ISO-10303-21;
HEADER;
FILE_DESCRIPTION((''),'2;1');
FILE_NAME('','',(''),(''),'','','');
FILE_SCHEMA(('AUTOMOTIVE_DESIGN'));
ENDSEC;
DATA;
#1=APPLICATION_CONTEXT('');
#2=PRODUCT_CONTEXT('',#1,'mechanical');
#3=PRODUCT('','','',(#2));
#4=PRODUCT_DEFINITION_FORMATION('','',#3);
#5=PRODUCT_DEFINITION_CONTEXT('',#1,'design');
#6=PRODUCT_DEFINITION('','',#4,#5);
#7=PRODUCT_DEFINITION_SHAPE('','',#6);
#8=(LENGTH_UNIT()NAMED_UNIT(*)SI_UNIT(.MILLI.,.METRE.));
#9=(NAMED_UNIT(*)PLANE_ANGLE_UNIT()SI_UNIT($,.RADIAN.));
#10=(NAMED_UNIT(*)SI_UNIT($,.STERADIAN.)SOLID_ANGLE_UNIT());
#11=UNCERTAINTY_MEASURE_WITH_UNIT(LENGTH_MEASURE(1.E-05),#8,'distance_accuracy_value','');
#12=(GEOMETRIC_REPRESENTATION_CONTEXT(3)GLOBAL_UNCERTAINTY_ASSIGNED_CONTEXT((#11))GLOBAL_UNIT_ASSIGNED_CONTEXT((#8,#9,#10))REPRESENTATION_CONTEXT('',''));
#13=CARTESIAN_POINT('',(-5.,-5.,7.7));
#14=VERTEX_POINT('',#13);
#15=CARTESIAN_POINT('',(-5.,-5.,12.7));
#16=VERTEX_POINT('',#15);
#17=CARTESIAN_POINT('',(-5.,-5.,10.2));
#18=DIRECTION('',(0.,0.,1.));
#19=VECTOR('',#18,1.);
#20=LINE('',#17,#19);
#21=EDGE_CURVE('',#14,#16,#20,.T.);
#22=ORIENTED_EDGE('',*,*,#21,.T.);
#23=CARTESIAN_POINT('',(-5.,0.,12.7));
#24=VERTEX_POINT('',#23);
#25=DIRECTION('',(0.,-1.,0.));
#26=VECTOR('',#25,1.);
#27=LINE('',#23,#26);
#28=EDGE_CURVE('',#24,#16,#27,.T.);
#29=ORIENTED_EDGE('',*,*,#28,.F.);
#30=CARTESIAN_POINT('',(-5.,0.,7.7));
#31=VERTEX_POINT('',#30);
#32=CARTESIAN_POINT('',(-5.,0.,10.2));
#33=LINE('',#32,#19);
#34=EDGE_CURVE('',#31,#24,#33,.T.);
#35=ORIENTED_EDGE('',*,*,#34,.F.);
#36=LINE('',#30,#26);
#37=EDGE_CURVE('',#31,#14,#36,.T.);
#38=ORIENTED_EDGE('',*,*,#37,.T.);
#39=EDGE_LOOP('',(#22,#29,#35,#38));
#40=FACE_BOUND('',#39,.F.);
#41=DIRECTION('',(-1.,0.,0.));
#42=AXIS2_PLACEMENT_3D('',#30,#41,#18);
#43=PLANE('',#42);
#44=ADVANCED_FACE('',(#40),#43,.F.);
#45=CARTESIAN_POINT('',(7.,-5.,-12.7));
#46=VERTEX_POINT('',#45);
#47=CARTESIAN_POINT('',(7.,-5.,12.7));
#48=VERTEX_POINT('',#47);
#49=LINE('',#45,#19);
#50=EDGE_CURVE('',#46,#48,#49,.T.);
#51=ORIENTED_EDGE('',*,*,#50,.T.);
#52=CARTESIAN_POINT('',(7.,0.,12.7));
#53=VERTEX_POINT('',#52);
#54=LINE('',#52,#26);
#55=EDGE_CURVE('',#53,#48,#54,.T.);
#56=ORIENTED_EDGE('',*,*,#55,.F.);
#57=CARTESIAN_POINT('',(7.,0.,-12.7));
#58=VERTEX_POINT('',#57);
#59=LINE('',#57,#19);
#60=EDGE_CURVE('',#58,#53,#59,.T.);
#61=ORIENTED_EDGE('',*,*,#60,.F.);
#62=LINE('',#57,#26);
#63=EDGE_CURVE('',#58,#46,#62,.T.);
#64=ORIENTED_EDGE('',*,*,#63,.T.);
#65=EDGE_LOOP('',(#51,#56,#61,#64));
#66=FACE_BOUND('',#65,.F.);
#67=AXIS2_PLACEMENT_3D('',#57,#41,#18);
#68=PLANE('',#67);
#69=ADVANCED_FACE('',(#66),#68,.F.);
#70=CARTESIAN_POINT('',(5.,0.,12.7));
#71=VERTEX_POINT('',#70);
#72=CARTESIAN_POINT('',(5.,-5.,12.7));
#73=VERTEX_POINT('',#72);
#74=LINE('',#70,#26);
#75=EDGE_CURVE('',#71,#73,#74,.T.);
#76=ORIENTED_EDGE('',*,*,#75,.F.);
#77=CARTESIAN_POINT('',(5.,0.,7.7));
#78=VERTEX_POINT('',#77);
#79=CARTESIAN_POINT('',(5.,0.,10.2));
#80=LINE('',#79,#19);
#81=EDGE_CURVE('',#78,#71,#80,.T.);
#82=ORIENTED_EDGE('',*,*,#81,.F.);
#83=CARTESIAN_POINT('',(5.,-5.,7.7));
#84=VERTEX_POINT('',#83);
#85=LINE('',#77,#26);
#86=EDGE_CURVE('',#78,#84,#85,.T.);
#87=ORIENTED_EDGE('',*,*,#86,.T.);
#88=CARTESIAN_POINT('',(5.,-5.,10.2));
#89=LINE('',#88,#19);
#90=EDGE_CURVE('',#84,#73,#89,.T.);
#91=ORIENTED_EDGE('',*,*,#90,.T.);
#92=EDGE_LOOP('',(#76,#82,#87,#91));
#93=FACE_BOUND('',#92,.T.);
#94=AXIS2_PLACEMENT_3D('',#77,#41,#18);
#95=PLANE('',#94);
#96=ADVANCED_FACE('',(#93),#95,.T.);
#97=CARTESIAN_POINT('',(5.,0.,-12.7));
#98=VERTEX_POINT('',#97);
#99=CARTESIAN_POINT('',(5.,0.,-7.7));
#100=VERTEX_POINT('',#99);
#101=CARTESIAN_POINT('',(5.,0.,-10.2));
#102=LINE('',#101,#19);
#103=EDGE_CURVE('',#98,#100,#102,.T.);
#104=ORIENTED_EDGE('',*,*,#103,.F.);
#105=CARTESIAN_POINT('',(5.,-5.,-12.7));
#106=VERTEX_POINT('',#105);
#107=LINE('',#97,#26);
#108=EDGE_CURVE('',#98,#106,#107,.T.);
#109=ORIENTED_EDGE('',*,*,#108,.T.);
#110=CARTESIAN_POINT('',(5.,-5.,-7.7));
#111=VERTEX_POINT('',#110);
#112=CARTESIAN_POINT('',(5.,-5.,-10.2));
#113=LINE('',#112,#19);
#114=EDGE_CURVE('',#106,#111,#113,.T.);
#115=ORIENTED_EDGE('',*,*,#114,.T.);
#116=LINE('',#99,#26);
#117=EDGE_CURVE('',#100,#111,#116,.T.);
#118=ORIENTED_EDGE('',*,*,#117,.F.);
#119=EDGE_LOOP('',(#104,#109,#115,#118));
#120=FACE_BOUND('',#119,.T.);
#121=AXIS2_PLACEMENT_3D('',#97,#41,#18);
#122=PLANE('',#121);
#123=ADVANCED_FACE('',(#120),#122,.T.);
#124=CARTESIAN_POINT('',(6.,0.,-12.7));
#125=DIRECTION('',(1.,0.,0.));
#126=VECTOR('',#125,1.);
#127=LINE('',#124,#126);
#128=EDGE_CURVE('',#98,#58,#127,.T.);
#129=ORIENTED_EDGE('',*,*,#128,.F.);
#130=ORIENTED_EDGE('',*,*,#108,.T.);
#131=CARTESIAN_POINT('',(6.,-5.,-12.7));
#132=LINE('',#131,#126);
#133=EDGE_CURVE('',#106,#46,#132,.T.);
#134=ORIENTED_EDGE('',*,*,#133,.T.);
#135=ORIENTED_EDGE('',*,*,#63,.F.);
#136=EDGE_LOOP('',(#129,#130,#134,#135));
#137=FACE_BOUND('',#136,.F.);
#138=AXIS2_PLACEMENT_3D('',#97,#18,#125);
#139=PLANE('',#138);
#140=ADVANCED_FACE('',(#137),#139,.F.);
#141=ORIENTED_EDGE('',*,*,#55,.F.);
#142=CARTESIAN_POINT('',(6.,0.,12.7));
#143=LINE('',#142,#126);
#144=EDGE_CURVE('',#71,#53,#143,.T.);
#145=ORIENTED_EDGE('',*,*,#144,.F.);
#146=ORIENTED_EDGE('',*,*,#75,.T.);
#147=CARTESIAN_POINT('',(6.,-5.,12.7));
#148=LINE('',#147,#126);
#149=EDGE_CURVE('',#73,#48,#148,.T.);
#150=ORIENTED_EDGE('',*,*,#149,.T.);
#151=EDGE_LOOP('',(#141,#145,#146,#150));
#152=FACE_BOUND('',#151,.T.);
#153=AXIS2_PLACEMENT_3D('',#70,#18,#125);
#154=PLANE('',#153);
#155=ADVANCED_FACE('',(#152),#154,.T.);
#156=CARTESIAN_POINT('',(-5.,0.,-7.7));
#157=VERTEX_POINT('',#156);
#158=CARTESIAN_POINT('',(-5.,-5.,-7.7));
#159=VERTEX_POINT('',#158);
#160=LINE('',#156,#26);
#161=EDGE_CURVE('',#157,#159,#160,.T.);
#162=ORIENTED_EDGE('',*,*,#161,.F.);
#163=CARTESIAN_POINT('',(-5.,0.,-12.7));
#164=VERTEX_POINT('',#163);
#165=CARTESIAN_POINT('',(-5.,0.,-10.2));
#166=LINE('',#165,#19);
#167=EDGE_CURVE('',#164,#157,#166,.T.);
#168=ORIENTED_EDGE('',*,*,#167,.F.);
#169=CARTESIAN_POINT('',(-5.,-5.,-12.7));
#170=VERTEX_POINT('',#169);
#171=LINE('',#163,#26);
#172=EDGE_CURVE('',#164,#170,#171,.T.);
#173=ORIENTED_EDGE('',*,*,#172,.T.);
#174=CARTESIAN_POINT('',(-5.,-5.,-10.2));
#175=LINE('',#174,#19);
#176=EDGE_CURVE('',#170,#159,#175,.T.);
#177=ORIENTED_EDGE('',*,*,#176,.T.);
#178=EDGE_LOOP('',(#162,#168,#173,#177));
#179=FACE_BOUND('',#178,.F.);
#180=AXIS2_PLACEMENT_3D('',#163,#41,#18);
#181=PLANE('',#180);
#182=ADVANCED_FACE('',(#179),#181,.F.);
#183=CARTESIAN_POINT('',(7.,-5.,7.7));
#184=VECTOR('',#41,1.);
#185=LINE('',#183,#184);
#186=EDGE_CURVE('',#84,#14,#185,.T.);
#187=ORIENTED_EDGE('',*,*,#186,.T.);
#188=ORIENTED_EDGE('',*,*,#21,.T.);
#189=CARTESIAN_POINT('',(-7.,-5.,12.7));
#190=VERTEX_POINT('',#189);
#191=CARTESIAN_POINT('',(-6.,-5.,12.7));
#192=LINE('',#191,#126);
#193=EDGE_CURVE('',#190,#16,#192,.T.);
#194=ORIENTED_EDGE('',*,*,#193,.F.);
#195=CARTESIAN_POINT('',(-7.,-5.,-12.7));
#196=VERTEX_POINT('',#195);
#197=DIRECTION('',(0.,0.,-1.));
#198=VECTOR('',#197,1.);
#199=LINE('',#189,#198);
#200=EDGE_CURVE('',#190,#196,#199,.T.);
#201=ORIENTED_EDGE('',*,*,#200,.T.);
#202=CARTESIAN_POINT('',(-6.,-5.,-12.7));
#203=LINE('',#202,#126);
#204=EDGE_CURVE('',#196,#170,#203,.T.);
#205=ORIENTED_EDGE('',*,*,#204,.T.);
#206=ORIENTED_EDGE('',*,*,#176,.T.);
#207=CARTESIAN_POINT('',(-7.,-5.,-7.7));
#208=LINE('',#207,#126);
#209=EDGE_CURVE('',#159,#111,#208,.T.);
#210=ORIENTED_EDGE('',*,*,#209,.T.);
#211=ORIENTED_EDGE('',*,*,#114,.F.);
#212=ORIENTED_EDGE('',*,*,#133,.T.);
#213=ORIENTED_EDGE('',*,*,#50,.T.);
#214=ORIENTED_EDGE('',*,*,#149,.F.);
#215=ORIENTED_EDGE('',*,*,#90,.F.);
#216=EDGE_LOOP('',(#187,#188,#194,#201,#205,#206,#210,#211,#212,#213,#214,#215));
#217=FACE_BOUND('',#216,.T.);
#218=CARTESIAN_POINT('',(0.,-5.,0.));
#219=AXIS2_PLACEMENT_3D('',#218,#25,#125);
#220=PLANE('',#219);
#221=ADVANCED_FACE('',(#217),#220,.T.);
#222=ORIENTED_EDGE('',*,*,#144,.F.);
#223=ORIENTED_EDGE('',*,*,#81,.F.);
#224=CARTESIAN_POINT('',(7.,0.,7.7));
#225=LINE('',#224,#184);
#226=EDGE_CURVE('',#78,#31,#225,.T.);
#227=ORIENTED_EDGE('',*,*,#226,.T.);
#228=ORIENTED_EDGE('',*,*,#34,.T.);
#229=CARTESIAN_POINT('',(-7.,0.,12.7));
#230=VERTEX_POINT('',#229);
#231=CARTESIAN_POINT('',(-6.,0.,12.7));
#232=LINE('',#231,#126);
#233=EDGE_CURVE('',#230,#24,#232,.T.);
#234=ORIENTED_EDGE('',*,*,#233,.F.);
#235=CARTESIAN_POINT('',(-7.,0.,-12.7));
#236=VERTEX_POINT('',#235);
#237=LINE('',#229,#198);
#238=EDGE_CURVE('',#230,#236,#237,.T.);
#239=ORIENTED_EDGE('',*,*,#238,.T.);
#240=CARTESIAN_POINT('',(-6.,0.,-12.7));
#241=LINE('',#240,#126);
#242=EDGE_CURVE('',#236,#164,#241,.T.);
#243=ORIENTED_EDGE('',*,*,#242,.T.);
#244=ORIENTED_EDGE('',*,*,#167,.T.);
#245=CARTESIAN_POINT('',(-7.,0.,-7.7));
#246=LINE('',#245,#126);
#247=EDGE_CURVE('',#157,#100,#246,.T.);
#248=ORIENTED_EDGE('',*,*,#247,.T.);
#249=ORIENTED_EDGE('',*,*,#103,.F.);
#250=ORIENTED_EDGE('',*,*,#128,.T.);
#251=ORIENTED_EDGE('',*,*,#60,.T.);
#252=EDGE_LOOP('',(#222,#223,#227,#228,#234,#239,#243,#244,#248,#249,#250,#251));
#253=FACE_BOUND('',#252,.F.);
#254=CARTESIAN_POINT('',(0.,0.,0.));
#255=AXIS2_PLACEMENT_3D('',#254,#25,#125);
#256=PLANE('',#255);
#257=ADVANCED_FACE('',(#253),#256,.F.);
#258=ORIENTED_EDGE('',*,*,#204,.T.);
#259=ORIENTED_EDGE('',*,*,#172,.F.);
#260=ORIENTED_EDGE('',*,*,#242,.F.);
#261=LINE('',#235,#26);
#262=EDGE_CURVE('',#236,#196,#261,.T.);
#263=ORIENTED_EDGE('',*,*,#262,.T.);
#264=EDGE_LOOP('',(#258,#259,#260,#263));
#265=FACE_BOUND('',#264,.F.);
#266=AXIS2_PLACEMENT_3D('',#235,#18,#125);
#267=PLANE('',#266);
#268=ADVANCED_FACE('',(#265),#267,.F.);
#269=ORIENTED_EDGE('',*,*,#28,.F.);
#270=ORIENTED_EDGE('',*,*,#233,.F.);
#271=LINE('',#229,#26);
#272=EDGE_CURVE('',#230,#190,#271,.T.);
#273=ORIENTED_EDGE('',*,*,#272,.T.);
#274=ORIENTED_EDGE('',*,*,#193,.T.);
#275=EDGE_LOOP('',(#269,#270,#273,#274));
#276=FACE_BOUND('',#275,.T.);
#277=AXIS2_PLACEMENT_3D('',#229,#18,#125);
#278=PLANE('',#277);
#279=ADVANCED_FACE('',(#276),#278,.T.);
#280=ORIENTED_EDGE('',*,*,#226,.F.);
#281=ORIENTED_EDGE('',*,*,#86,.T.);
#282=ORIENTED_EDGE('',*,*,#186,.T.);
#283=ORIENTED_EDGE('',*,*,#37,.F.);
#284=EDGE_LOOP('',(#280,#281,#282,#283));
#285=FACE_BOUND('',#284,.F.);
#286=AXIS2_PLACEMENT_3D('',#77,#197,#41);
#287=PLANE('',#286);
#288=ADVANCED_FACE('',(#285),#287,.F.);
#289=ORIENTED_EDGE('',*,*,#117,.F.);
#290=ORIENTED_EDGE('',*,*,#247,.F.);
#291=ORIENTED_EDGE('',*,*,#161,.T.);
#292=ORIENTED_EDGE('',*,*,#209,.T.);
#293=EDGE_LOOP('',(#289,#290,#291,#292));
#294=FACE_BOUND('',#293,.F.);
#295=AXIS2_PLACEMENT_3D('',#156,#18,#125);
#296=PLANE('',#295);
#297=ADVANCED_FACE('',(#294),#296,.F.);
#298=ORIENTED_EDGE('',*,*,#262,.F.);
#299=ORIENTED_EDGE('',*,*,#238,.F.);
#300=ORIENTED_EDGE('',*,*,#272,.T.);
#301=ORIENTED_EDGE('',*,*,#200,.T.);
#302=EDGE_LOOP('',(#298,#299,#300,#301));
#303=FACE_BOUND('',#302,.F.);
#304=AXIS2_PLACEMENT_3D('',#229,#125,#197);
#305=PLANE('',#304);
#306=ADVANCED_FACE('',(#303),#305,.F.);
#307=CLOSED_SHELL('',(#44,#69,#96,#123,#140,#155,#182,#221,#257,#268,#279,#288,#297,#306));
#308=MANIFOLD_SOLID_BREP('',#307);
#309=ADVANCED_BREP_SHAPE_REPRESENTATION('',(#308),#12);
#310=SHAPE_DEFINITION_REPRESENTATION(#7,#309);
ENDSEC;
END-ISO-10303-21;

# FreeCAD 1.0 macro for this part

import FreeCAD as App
import Part
import Sketcher


def add_polygon(sketch, points):
    """Adds a closed chain of lines whose ends are joined by coincident constraints."""
    first, n = sketch.GeometryCount, len(points)
    for a, b in zip(points, points[1:] + points[:1]):
        sketch.addGeometry(Part.LineSegment(App.Vector(*a, 0), App.Vector(*b, 0)), False)
    for i in range(n):
        sketch.addConstraint(Sketcher.Constraint("Coincident", first + i, 2, first + (i + 1) % n, 1))

doc = App.newDocument("Part")
body = doc.addObject("PartDesign::Body", "Body")

sketch1 = body.newObject("Sketcher::SketchObject", "Sketch")
sketch1.AttachmentSupport = (doc.getObject("XZ_Plane"), [""])
sketch1.MapMode = "FlatFace"
add_polygon(sketch1, [(7, 12.7), (5, 12.7), (5, 7.7), (-5, 7.7), (-5, 12.7), (-7, 12.7), (-7, -12.7), (-5, -12.7), (-5, -7.7), (5, -7.7), (5, -12.7), (7, -12.7)])
sketch1.addConstraint(Sketcher.Constraint("Horizontal", 0))
sketch1.addConstraint(Sketcher.Constraint("Vertical", 1))
sketch1.addConstraint(Sketcher.Constraint("Horizontal", 2))
sketch1.addConstraint(Sketcher.Constraint("Vertical", 3))
sketch1.addConstraint(Sketcher.Constraint("Horizontal", 4))
sketch1.addConstraint(Sketcher.Constraint("Vertical", 5))
sketch1.addConstraint(Sketcher.Constraint("Horizontal", 6))
sketch1.addConstraint(Sketcher.Constraint("Vertical", 7))
sketch1.addConstraint(Sketcher.Constraint("Horizontal", 8))
sketch1.addConstraint(Sketcher.Constraint("Vertical", 9))
sketch1.addConstraint(Sketcher.Constraint("Horizontal", 10))
sketch1.addConstraint(Sketcher.Constraint("Vertical", 11))
sketch1.addConstraint(Sketcher.Constraint("Symmetric", 0, 2, 6, 2, -1, 1))
sketch1.addConstraint(Sketcher.Constraint("Symmetric", 2, 2, 8, 2, -1, 1))
sketch1.addConstraint(Sketcher.Constraint("Symmetric", 4, 2, 10, 2, -1, 1))
sketch1.addConstraint(Sketcher.Constraint("Symmetric", 0, 2, 3, 2, -2))
sketch1.addConstraint(Sketcher.Constraint("DistanceX", 0, 2, 0, 1, 2.0))
sketch1.addConstraint(Sketcher.Constraint("DistanceX", 2, 2, 2, 1, 10.0))
sketch1.addConstraint(Sketcher.Constraint("DistanceY", 1, 2, 1, 1, 5.0))
sketch1.addConstraint(Sketcher.Constraint("DistanceY", 5, 2, 5, 1, 25.4))
pad1 = body.newObject("PartDesign::Pad", "Pad")
pad1.Profile = sketch1
pad1.Length = 5

doc.recompute()
